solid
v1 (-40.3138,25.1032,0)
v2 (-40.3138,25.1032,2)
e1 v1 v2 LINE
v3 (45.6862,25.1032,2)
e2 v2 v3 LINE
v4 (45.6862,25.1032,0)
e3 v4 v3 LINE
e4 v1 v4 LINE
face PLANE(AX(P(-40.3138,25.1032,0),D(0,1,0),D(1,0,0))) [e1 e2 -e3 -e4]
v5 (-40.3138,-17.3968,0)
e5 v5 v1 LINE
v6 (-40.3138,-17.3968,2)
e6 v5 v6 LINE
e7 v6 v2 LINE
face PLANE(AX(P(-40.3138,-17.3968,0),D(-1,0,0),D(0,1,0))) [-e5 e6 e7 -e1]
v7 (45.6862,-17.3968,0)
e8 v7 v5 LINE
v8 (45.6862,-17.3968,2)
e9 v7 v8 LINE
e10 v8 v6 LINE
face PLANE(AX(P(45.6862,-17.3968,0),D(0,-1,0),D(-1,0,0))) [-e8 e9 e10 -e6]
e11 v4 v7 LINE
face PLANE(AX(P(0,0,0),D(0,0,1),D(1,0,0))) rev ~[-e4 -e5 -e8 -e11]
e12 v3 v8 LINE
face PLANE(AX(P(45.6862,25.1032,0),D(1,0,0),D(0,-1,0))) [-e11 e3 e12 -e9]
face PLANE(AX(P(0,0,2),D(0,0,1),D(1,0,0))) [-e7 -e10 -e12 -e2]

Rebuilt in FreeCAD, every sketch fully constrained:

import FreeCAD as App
import Part
import Sketcher


def add_polygon(sketch, points):
    """Adds a closed chain of lines whose ends are joined by coincident constraints."""
    first, n = sketch.GeometryCount, len(points)
    for a, b in zip(points, points[1:] + points[:1]):
        sketch.addGeometry(Part.LineSegment(App.Vector(*a, 0), App.Vector(*b, 0)), False)
    for i in range(n):
        sketch.addConstraint(Sketcher.Constraint("Coincident", first + i, 2, first + (i + 1) % n, 1))

doc = App.newDocument("Part")
body = doc.addObject("PartDesign::Body", "Body")

sketch1 = body.newObject("Sketcher::SketchObject", "Sketch")
sketch1.AttachmentSupport = (doc.getObject("XY_Plane"), [""])
sketch1.MapMode = "FlatFace"
add_polygon(sketch1, [(46, 25), (-40, 25), (-40, -17), (46, -17)])
sketch1.addConstraint(Sketcher.Constraint("Horizontal", 0))
sketch1.addConstraint(Sketcher.Constraint("Vertical", 1))
sketch1.addConstraint(Sketcher.Constraint("Horizontal", 2))
sketch1.addConstraint(Sketcher.Constraint("Vertical", 3))
sketch1.addConstraint(Sketcher.Constraint("DistanceX", 0, 2, 0, 1, 86.0))
sketch1.addConstraint(Sketcher.Constraint("DistanceY", 1, 2, 1, 1, 42.5))
sketch1.addConstraint(Sketcher.Constraint("DistanceX", 0, 2, -1, 1, 40.3138))
sketch1.addConstraint(Sketcher.Constraint("DistanceY", -1, 1, 0, 2, 25.1032))
pad1 = body.newObject("PartDesign::Pad", "Pad")
pad1.Profile = sketch1
pad1.Length = 2

doc.recompute()
